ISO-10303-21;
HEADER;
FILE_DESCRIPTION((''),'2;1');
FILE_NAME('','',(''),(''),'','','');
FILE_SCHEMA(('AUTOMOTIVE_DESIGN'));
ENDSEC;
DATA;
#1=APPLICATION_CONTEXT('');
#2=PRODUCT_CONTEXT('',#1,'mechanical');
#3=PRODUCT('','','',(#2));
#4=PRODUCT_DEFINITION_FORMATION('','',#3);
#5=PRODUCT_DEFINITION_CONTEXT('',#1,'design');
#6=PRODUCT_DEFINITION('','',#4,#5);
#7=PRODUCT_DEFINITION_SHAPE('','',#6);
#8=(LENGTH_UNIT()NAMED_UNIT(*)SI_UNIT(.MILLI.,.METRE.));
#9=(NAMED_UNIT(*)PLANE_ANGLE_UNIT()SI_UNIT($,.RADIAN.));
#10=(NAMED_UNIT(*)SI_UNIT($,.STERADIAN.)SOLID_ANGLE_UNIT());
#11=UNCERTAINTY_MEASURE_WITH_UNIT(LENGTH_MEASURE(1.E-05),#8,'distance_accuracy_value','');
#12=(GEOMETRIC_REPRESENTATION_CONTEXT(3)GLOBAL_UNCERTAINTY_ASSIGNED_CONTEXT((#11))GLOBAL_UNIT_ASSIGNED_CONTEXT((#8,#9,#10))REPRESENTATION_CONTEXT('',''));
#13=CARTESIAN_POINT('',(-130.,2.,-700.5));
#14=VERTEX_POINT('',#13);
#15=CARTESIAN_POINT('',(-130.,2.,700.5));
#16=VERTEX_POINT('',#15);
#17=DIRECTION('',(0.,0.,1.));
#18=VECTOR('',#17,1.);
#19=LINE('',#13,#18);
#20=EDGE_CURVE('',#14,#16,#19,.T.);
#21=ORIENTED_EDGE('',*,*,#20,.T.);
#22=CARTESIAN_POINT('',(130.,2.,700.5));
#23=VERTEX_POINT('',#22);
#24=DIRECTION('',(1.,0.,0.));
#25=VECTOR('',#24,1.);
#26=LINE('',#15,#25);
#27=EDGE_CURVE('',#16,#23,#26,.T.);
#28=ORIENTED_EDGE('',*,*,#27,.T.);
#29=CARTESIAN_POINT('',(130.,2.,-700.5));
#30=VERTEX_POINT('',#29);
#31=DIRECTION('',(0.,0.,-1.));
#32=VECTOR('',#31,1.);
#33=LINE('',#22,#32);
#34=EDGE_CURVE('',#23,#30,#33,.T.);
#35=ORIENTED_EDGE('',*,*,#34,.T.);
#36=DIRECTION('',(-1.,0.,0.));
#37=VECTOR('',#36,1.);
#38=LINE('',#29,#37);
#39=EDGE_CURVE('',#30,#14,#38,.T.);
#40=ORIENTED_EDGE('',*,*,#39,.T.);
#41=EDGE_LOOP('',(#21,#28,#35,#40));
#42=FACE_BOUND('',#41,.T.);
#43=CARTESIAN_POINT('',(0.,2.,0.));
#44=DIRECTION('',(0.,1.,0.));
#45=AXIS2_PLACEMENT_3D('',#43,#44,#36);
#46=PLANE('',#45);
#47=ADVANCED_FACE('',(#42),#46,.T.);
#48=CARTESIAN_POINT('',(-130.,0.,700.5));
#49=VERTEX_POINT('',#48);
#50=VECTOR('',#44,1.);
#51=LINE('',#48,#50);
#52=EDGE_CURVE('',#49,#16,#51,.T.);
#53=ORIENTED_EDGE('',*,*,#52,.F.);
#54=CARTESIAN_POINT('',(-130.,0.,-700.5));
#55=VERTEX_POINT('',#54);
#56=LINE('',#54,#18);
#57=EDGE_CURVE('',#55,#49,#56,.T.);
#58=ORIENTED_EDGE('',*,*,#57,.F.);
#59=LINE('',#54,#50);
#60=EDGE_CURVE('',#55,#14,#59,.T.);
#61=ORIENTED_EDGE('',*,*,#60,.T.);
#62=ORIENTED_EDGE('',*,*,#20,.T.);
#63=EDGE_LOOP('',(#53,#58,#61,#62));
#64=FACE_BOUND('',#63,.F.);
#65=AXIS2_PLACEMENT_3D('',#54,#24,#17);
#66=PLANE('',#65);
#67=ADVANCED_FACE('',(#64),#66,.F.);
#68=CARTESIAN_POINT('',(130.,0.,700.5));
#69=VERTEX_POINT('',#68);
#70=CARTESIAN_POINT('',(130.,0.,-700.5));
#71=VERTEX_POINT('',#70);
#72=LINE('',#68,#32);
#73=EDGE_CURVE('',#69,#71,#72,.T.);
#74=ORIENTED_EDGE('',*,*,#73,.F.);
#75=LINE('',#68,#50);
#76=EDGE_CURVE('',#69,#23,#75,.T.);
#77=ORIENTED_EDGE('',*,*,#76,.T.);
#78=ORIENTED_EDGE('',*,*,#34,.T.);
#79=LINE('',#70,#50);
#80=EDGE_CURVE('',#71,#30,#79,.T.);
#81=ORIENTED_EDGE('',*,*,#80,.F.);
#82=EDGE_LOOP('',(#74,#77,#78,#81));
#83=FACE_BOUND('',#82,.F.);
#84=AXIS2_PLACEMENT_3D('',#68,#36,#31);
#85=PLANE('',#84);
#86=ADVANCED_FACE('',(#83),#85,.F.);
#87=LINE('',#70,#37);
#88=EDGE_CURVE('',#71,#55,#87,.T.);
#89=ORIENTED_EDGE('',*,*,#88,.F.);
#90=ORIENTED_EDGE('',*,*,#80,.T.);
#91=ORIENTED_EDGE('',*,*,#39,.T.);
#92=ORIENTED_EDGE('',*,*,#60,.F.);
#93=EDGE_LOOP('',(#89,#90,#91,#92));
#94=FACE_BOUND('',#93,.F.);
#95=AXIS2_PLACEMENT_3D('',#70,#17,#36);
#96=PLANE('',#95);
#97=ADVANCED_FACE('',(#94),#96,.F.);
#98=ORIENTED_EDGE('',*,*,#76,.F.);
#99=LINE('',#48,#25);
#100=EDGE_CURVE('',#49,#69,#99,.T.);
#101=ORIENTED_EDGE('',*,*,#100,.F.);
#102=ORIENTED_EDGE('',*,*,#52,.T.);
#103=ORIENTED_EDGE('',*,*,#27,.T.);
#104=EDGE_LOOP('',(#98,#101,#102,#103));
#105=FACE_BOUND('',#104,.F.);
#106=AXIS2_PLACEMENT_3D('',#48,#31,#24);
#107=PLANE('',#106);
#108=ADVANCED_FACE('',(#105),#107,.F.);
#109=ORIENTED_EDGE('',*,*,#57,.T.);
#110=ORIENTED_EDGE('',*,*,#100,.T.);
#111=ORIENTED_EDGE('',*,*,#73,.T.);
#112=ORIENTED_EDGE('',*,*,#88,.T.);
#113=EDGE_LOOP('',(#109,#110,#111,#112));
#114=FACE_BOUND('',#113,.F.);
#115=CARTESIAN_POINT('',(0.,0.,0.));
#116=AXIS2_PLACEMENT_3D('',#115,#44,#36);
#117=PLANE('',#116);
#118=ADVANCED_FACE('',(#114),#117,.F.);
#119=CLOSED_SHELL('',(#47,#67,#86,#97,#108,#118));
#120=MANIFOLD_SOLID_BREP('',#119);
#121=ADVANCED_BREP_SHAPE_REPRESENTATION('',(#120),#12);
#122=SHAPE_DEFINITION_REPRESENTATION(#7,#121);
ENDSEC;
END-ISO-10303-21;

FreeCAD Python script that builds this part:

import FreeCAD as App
import Part
import Sketcher
from FreeCAD import Vector

doc = App.newDocument("Part")
body = doc.addObject("PartDesign::Body", "Body")

sketch1 = body.newObject("Sketcher::SketchObject", "Sketch")
sketch1.AttachmentSupport = (doc.getObject("XZ_Plane"), [""])
sketch1.MapMode = "FlatFace"
sketch1.addGeometry(Part.LineSegment(Vector(-130, -700, 0), Vector(-130, 700, 0)), False)
sketch1.addGeometry(Part.LineSegment(Vector(-130, 700, 0), Vector(130, 700, 0)), False)
sketch1.addGeometry(Part.LineSegment(Vector(130, 700, 0), Vector(130, -700, 0)), False)
sketch1.addGeometry(Part.LineSegment(Vector(130, -700, 0), Vector(-130, -700, 0)), False)
sketch1.addConstraint(Sketcher.Constraint("Coincident", 0, 2, 1, 1))
sketch1.addConstraint(Sketcher.Constraint("Coincident", 1, 2, 2, 1))
sketch1.addConstraint(Sketcher.Constraint("Coincident", 2, 2, 3, 1))
sketch1.addConstraint(Sketcher.Constraint("Coincident", 3, 2, 0, 1))
sketch1.addConstraint(Sketcher.Constraint("Vertical", 0))
sketch1.addConstraint(Sketcher.Constraint("Horizontal", 1))
sketch1.addConstraint(Sketcher.Constraint("Vertical", 2))
sketch1.addConstraint(Sketcher.Constraint("Horizontal", 3))
sketch1.addConstraint(Sketcher.Constraint("Symmetric", 0, 2, 2, 2, -1, 1))
sketch1.addConstraint(Sketcher.Constraint("DistanceX", 1, 1, 1, 2, 260.0))
sketch1.addConstraint(Sketcher.Constraint("DistanceY", 0, 1, 0, 2, 1401.0))
pad1 = body.newObject("PartDesign::Pad", "Pad")
pad1.Profile = sketch1
pad1.Length = 2
pad1.Reversed = True

doc.recompute()
